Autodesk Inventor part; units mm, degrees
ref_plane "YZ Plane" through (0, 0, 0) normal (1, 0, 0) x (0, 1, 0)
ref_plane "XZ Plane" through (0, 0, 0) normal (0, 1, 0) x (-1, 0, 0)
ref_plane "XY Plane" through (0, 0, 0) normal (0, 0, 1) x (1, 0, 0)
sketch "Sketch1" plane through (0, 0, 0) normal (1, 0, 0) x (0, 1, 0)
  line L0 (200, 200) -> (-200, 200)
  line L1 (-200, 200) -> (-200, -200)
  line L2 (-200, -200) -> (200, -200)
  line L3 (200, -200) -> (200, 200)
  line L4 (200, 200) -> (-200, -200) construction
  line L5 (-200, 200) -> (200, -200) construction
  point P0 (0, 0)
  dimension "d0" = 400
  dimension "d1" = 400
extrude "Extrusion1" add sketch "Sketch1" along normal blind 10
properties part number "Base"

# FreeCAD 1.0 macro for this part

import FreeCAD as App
import Part
import Sketcher
from FreeCAD import Vector
Q = App.Units.Quantity


def add_polygon(sketch, points):
    """Adds a closed chain of lines whose ends are joined by coincident constraints."""
    first, n = sketch.GeometryCount, len(points)
    for a, b in zip(points, points[1:] + points[:1]):
        sketch.addGeometry(Part.LineSegment(App.Vector(*a, 0), App.Vector(*b, 0)), False)
    for i in range(n):
        sketch.addConstraint(Sketcher.Constraint("Coincident", first + i, 2, first + (i + 1) % n, 1))

doc = App.newDocument("Part")
body = doc.addObject("PartDesign::Body", "Body")

sketch1 = body.newObject("Sketcher::SketchObject", "Sketch")
sketch1.AttachmentSupport = (doc.getObject("YZ_Plane"), [""])
sketch1.MapMode = "FlatFace"
add_polygon(sketch1, [(200, -200), (200, 200), (-200, 200), (-200, -200)])
sketch1.addConstraint([
    Sketcher.Constraint("Vertical", 0),
    Sketcher.Constraint("Horizontal", 1),
    Sketcher.Constraint("Vertical", 2),
    Sketcher.Constraint("Horizontal", 3),
    Sketcher.Constraint("Symmetric", 0, 2, 2, 2, -1, 1),
    Sketcher.Constraint("Equal", 3, 0),
    Sketcher.Constraint("DistanceX", 1, 2, 1, 1, Q("400 mm")),
])
pad1 = body.newObject("PartDesign::Pad", "Pad")
pad1.Profile = sketch1
pad1.Length = 10

doc.recompute()
